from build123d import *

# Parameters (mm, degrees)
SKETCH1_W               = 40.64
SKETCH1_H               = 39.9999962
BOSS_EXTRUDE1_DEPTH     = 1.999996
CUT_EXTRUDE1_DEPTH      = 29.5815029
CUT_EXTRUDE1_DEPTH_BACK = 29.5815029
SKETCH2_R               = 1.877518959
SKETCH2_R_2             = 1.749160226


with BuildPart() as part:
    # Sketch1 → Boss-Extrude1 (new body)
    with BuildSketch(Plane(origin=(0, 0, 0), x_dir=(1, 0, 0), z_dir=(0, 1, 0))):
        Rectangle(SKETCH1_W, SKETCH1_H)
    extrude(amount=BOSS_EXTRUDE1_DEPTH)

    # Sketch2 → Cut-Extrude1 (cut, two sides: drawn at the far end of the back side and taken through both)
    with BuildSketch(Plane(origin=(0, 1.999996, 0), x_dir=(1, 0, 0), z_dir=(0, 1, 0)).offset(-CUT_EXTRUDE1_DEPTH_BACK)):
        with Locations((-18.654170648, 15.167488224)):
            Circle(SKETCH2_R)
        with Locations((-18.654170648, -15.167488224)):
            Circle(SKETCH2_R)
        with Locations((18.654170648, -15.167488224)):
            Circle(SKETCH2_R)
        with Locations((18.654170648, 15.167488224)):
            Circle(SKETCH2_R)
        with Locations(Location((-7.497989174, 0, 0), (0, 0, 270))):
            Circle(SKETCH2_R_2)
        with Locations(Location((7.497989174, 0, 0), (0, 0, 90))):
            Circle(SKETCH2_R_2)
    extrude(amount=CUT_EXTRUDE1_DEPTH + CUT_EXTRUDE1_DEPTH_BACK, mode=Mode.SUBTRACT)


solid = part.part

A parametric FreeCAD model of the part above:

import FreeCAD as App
import Part
import Sketcher
Q = App.Units.Quantity

doc = App.newDocument("Part")
params = doc.addObject("Spreadsheet::Sheet", "Params")
for row, (alias, value) in enumerate([
    ("sketch1_width", "1.6 in"),
    ("pad1_length", "1.999996 mm"),
], start=1):
    params.set(f"A{row}", alias)
    params.set(f"B{row}", "=" + value)
    params.setAlias(f"B{row}", alias)

body = doc.addObject("PartDesign::Body", "Body")

# Sketch on XZ plane
sketch1 = body.newObject("Sketcher::SketchObject", "Sketch")
sketch1.AttachmentSupport = (doc.getObject("XZ_Plane"), [""])
sketch1.MapMode = "FlatFace"
sketch1.addGeometry([
    Part.LineSegment(App.Vector(-20, -20, 0), App.Vector(-20, 20, 0)),
    Part.LineSegment(App.Vector(-20, 20, 0), App.Vector(20, 20, 0)),
    Part.LineSegment(App.Vector(20, 20, 0), App.Vector(20, -20, 0)),
    Part.LineSegment(App.Vector(20, -20, 0), App.Vector(-20, -20, 0)),
], False)
sketch1.addConstraint([
    Sketcher.Constraint("Coincident", 0, 2, 1, 1),
    Sketcher.Constraint("Coincident", 1, 2, 2, 1),
    Sketcher.Constraint("Coincident", 2, 2, 3, 1),
    Sketcher.Constraint("Coincident", 3, 2, 0, 1),
    Sketcher.Constraint("Vertical", 0),
    Sketcher.Constraint("Horizontal", 1),
    Sketcher.Constraint("Vertical", 2),
    Sketcher.Constraint("Horizontal", 3),
    Sketcher.Constraint("Symmetric", 0, 2, 2, 2, -1, 1),
    Sketcher.Constraint("DistanceX", 1, 1, 1, 2, Q("1.6 in")),
    Sketcher.Constraint("DistanceY", -1, 1, 0, 2, 19.999998),
])
sketch1.setExpression("Constraints[9]", "Params.sketch1_width")
pad1 = body.newObject("PartDesign::Pad", "Pad")
pad1.Profile = sketch1
pad1.setExpression("Length", "Params.pad1_length")
pad1.Reversed = True

# Sketch on XZ plane
sketch2 = body.newObject("Sketcher::SketchObject", "Sketch001")
sketch2.AttachmentSupport = (doc.getObject("XZ_Plane"), [""])
sketch2.MapMode = "FlatFace"
sketch2.AttachmentOffset = App.Placement(App.Vector(0, 0, -1.999996), App.Rotation())
sketch2.addGeometry([
    Part.Circle(App.Vector(-18.7, -15.2, 0), App.Vector(0, 0, 1), 1.9),  # 0
    Part.Circle(App.Vector(-18.7, 15.2, 0), App.Vector(0, 0, 1), 1.9),  # 1
    Part.Circle(App.Vector(18.7, 15.2, 0), App.Vector(0, 0, 1), 1.9),  # 2
    Part.Circle(App.Vector(18.7, -15.2, 0), App.Vector(0, 0, 1), 1.9),  # 3
    Part.Circle(App.Vector(-7.5, 0, 0), App.Vector(0, 0, 1), 1.7),  # 4
    Part.Circle(App.Vector(7.5, 0, 0), App.Vector(0, 0, 1), 1.7),  # 5
], False)
sketch2.addConstraint([
    Sketcher.Constraint("Equal", 0, 1),
    Sketcher.Constraint("Equal", 1, 2),
    Sketcher.Constraint("Equal", 2, 3),
    Sketcher.Constraint("Equal", 4, 5),
    Sketcher.Constraint("Symmetric", 0, 3, 2, 3, -1, 1),
    Sketcher.Constraint("Symmetric", 1, 3, 3, 3, -1, 1),
    Sketcher.Constraint("Symmetric", 4, 3, 5, 3, -1, 1),
    Sketcher.Constraint("Symmetric", 1, 3, 2, 3, -2),
    Sketcher.Constraint("PointOnObject", 4, 3, -1),
    Sketcher.Constraint("Diameter", 4, 3.49832),
    Sketcher.Constraint("Diameter", 0, 3.755038),
    Sketcher.Constraint("DistanceX", 0, 3, -1, 1, 18.654171),
    Sketcher.Constraint("DistanceY", 0, 3, -1, 1, 15.167488),
    Sketcher.Constraint("DistanceX", 4, 3, -1, 1, 7.497989),
])
pocket1 = body.newObject("PartDesign::Pocket", "Pocket")
pocket1.Profile = sketch2
pocket1.Type = "ThroughAll"
pocket1.Midplane = True

doc.recompute()
